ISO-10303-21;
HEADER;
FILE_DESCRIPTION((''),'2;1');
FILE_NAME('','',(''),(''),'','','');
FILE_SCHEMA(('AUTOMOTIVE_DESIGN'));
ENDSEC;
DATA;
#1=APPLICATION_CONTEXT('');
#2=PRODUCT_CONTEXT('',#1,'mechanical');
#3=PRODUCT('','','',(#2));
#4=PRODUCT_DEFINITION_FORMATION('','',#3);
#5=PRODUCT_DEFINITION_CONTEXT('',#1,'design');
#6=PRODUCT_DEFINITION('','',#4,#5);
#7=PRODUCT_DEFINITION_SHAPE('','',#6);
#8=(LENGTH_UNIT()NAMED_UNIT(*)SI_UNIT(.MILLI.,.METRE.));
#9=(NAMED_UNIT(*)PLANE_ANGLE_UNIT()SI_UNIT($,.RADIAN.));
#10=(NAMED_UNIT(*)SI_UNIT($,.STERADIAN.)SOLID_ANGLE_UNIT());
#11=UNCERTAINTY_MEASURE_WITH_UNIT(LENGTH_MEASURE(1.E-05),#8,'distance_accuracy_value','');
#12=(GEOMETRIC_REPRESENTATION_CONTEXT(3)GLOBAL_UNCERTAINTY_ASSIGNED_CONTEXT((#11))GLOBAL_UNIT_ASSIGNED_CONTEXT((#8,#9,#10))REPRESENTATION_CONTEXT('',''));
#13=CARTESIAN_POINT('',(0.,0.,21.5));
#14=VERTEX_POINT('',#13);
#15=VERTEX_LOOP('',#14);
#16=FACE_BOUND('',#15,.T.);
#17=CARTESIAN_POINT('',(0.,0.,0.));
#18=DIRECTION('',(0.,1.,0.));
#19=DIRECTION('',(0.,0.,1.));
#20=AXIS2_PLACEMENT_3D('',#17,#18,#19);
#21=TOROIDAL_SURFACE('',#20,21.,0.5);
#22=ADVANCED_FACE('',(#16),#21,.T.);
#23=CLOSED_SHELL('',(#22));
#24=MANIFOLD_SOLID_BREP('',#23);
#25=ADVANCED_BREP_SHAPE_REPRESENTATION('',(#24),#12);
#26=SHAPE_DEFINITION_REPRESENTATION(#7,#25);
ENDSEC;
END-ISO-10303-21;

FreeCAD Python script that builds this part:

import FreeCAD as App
import Part
import Sketcher

V = App.Vector

doc = App.newDocument("Part")
body = doc.addObject("PartDesign::Body", "Body")

sketch1 = doc.addObject("Sketcher::SketchObject", "Sketch")
body.addObject(sketch1)
sketch1.AttachmentSupport = (doc.YZ_Plane, [""])
sketch1.MapMode = "FlatFace"
sketch1.addGeometry(Part.Circle(V(0, -21, 0), V(0, 0, 1), 0.5), False)
sketch1.addConstraint([
    Sketcher.Constraint("PointOnObject", 0, 3, -2),
    Sketcher.Constraint("Diameter", 0, 1.0),
    Sketcher.Constraint("DistanceY", 0, 3, -1, 1, 21.0),
])
revolution = doc.addObject("PartDesign::Revolution", "Revolution")
body.addObject(revolution)
revolution.Profile = sketch1
revolution.ReferenceAxis = (sketch1, ["H_Axis"])
revolution.Angle = 360

doc.recompute()
